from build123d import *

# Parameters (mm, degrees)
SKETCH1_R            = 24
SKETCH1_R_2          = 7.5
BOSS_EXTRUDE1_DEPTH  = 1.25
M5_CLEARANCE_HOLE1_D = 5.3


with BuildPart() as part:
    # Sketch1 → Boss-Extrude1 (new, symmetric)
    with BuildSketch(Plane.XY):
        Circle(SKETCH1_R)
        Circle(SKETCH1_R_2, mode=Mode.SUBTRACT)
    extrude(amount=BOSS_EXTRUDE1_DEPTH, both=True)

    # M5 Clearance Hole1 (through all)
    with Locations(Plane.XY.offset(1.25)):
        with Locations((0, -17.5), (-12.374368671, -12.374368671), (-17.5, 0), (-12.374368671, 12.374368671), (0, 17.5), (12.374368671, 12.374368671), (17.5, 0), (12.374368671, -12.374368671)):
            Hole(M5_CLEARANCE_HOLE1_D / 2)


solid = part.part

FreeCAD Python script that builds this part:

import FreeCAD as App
import Part
import Sketcher
from FreeCAD import Vector

doc = App.newDocument("Part")
body = doc.addObject("PartDesign::Body", "Body")

sketch1 = body.newObject("Sketcher::SketchObject", "Sketch")
sketch1.AttachmentSupport = (doc.getObject("XY_Plane"), [""])
sketch1.MapMode = "FlatFace"
sketch1.addGeometry(Part.Circle(Vector(0, 0, 0), Vector(0, 0, 1), 24), False)
sketch1.addGeometry(Part.Circle(Vector(0, 0, 0), Vector(0, 0, 1), 8), False)
sketch1.addConstraint(Sketcher.Constraint("Coincident", 0, 3, -1, 1))
sketch1.addConstraint(Sketcher.Constraint("Coincident", 1, 3, -1, 1))
sketch1.addConstraint(Sketcher.Constraint("Diameter", 0, 48.0))
sketch1.addConstraint(Sketcher.Constraint("Diameter", 1, 15.0))
pad1 = body.newObject("PartDesign::Pad", "Pad")
pad1.Profile = sketch1
pad1.Length = 2.5
pad1.Midplane = True

sketch2 = body.newObject("Sketcher::SketchObject", "Sketch001")
sketch2.AttachmentSupport = (doc.getObject("XY_Plane"), [""])
sketch2.MapMode = "FlatFace"
sketch2.AttachmentOffset = App.Placement(Vector(0, 0, 1.25), App.Rotation())
sketch2.addGeometry(Part.Circle(Vector(0, -17.5, 0), Vector(0, 0, 1), 2.6), False)
sketch2.addGeometry(Part.Circle(Vector(-12.4, -12.4, 0), Vector(0, 0, 1), 2.6), False)
sketch2.addGeometry(Part.Circle(Vector(-17.5, 0, 0), Vector(0, 0, 1), 2.6), False)
sketch2.addGeometry(Part.Circle(Vector(-12.4, 12.4, 0), Vector(0, 0, 1), 2.6), False)
sketch2.addGeometry(Part.Circle(Vector(0, 17.5, 0), Vector(0, 0, 1), 2.6), False)
sketch2.addGeometry(Part.Circle(Vector(12.4, 12.4, 0), Vector(0, 0, 1), 2.6), False)
sketch2.addGeometry(Part.Circle(Vector(17.5, 0, 0), Vector(0, 0, 1), 2.6), False)
sketch2.addGeometry(Part.Circle(Vector(12.4, -12.4, 0), Vector(0, 0, 1), 2.6), False)
sketch2.addConstraint(Sketcher.Constraint("Equal", 0, 1))
sketch2.addConstraint(Sketcher.Constraint("Equal", 1, 2))
sketch2.addConstraint(Sketcher.Constraint("Equal", 2, 3))
sketch2.addConstraint(Sketcher.Constraint("Equal", 3, 4))
sketch2.addConstraint(Sketcher.Constraint("Equal", 4, 5))
sketch2.addConstraint(Sketcher.Constraint("Equal", 5, 6))
sketch2.addConstraint(Sketcher.Constraint("Equal", 6, 7))
sketch2.addConstraint(Sketcher.Constraint("Symmetric", 0, 3, 4, 3, -1, 1))
sketch2.addConstraint(Sketcher.Constraint("Symmetric", 1, 3, 5, 3, -1, 1))
sketch2.addConstraint(Sketcher.Constraint("Symmetric", 2, 3, 6, 3, -1, 1))
sketch2.addConstraint(Sketcher.Constraint("Symmetric", 3, 3, 7, 3, -1, 1))
sketch2.addConstraint(Sketcher.Constraint("Symmetric", 3, 3, 5, 3, -2))
sketch2.addConstraint(Sketcher.Constraint("PointOnObject", 0, 3, -2))
sketch2.addConstraint(Sketcher.Constraint("PointOnObject", 2, 3, -1))
sketch2.addConstraint(Sketcher.Constraint("Diameter", 0, 5.3))
sketch2.addConstraint(Sketcher.Constraint("DistanceY", 0, 3, 4, 3, 35.0))
sketch2.addConstraint(Sketcher.Constraint("DistanceX", 2, 3, -1, 1, 17.5))
sketch2.addConstraint(Sketcher.Constraint("DistanceX", 1, 3, -1, 1, 12.374369))
sketch2.addConstraint(Sketcher.Constraint("DistanceY", 1, 3, -1, 1, 12.374369))
doc.recompute()
hole = body.newObject("PartDesign::Hole", "Hole")
hole.Profile = sketch2
hole.ThreadType = "None"
hole.Diameter = 5.3
hole.DepthType = "ThroughAll"

doc.recompute()
